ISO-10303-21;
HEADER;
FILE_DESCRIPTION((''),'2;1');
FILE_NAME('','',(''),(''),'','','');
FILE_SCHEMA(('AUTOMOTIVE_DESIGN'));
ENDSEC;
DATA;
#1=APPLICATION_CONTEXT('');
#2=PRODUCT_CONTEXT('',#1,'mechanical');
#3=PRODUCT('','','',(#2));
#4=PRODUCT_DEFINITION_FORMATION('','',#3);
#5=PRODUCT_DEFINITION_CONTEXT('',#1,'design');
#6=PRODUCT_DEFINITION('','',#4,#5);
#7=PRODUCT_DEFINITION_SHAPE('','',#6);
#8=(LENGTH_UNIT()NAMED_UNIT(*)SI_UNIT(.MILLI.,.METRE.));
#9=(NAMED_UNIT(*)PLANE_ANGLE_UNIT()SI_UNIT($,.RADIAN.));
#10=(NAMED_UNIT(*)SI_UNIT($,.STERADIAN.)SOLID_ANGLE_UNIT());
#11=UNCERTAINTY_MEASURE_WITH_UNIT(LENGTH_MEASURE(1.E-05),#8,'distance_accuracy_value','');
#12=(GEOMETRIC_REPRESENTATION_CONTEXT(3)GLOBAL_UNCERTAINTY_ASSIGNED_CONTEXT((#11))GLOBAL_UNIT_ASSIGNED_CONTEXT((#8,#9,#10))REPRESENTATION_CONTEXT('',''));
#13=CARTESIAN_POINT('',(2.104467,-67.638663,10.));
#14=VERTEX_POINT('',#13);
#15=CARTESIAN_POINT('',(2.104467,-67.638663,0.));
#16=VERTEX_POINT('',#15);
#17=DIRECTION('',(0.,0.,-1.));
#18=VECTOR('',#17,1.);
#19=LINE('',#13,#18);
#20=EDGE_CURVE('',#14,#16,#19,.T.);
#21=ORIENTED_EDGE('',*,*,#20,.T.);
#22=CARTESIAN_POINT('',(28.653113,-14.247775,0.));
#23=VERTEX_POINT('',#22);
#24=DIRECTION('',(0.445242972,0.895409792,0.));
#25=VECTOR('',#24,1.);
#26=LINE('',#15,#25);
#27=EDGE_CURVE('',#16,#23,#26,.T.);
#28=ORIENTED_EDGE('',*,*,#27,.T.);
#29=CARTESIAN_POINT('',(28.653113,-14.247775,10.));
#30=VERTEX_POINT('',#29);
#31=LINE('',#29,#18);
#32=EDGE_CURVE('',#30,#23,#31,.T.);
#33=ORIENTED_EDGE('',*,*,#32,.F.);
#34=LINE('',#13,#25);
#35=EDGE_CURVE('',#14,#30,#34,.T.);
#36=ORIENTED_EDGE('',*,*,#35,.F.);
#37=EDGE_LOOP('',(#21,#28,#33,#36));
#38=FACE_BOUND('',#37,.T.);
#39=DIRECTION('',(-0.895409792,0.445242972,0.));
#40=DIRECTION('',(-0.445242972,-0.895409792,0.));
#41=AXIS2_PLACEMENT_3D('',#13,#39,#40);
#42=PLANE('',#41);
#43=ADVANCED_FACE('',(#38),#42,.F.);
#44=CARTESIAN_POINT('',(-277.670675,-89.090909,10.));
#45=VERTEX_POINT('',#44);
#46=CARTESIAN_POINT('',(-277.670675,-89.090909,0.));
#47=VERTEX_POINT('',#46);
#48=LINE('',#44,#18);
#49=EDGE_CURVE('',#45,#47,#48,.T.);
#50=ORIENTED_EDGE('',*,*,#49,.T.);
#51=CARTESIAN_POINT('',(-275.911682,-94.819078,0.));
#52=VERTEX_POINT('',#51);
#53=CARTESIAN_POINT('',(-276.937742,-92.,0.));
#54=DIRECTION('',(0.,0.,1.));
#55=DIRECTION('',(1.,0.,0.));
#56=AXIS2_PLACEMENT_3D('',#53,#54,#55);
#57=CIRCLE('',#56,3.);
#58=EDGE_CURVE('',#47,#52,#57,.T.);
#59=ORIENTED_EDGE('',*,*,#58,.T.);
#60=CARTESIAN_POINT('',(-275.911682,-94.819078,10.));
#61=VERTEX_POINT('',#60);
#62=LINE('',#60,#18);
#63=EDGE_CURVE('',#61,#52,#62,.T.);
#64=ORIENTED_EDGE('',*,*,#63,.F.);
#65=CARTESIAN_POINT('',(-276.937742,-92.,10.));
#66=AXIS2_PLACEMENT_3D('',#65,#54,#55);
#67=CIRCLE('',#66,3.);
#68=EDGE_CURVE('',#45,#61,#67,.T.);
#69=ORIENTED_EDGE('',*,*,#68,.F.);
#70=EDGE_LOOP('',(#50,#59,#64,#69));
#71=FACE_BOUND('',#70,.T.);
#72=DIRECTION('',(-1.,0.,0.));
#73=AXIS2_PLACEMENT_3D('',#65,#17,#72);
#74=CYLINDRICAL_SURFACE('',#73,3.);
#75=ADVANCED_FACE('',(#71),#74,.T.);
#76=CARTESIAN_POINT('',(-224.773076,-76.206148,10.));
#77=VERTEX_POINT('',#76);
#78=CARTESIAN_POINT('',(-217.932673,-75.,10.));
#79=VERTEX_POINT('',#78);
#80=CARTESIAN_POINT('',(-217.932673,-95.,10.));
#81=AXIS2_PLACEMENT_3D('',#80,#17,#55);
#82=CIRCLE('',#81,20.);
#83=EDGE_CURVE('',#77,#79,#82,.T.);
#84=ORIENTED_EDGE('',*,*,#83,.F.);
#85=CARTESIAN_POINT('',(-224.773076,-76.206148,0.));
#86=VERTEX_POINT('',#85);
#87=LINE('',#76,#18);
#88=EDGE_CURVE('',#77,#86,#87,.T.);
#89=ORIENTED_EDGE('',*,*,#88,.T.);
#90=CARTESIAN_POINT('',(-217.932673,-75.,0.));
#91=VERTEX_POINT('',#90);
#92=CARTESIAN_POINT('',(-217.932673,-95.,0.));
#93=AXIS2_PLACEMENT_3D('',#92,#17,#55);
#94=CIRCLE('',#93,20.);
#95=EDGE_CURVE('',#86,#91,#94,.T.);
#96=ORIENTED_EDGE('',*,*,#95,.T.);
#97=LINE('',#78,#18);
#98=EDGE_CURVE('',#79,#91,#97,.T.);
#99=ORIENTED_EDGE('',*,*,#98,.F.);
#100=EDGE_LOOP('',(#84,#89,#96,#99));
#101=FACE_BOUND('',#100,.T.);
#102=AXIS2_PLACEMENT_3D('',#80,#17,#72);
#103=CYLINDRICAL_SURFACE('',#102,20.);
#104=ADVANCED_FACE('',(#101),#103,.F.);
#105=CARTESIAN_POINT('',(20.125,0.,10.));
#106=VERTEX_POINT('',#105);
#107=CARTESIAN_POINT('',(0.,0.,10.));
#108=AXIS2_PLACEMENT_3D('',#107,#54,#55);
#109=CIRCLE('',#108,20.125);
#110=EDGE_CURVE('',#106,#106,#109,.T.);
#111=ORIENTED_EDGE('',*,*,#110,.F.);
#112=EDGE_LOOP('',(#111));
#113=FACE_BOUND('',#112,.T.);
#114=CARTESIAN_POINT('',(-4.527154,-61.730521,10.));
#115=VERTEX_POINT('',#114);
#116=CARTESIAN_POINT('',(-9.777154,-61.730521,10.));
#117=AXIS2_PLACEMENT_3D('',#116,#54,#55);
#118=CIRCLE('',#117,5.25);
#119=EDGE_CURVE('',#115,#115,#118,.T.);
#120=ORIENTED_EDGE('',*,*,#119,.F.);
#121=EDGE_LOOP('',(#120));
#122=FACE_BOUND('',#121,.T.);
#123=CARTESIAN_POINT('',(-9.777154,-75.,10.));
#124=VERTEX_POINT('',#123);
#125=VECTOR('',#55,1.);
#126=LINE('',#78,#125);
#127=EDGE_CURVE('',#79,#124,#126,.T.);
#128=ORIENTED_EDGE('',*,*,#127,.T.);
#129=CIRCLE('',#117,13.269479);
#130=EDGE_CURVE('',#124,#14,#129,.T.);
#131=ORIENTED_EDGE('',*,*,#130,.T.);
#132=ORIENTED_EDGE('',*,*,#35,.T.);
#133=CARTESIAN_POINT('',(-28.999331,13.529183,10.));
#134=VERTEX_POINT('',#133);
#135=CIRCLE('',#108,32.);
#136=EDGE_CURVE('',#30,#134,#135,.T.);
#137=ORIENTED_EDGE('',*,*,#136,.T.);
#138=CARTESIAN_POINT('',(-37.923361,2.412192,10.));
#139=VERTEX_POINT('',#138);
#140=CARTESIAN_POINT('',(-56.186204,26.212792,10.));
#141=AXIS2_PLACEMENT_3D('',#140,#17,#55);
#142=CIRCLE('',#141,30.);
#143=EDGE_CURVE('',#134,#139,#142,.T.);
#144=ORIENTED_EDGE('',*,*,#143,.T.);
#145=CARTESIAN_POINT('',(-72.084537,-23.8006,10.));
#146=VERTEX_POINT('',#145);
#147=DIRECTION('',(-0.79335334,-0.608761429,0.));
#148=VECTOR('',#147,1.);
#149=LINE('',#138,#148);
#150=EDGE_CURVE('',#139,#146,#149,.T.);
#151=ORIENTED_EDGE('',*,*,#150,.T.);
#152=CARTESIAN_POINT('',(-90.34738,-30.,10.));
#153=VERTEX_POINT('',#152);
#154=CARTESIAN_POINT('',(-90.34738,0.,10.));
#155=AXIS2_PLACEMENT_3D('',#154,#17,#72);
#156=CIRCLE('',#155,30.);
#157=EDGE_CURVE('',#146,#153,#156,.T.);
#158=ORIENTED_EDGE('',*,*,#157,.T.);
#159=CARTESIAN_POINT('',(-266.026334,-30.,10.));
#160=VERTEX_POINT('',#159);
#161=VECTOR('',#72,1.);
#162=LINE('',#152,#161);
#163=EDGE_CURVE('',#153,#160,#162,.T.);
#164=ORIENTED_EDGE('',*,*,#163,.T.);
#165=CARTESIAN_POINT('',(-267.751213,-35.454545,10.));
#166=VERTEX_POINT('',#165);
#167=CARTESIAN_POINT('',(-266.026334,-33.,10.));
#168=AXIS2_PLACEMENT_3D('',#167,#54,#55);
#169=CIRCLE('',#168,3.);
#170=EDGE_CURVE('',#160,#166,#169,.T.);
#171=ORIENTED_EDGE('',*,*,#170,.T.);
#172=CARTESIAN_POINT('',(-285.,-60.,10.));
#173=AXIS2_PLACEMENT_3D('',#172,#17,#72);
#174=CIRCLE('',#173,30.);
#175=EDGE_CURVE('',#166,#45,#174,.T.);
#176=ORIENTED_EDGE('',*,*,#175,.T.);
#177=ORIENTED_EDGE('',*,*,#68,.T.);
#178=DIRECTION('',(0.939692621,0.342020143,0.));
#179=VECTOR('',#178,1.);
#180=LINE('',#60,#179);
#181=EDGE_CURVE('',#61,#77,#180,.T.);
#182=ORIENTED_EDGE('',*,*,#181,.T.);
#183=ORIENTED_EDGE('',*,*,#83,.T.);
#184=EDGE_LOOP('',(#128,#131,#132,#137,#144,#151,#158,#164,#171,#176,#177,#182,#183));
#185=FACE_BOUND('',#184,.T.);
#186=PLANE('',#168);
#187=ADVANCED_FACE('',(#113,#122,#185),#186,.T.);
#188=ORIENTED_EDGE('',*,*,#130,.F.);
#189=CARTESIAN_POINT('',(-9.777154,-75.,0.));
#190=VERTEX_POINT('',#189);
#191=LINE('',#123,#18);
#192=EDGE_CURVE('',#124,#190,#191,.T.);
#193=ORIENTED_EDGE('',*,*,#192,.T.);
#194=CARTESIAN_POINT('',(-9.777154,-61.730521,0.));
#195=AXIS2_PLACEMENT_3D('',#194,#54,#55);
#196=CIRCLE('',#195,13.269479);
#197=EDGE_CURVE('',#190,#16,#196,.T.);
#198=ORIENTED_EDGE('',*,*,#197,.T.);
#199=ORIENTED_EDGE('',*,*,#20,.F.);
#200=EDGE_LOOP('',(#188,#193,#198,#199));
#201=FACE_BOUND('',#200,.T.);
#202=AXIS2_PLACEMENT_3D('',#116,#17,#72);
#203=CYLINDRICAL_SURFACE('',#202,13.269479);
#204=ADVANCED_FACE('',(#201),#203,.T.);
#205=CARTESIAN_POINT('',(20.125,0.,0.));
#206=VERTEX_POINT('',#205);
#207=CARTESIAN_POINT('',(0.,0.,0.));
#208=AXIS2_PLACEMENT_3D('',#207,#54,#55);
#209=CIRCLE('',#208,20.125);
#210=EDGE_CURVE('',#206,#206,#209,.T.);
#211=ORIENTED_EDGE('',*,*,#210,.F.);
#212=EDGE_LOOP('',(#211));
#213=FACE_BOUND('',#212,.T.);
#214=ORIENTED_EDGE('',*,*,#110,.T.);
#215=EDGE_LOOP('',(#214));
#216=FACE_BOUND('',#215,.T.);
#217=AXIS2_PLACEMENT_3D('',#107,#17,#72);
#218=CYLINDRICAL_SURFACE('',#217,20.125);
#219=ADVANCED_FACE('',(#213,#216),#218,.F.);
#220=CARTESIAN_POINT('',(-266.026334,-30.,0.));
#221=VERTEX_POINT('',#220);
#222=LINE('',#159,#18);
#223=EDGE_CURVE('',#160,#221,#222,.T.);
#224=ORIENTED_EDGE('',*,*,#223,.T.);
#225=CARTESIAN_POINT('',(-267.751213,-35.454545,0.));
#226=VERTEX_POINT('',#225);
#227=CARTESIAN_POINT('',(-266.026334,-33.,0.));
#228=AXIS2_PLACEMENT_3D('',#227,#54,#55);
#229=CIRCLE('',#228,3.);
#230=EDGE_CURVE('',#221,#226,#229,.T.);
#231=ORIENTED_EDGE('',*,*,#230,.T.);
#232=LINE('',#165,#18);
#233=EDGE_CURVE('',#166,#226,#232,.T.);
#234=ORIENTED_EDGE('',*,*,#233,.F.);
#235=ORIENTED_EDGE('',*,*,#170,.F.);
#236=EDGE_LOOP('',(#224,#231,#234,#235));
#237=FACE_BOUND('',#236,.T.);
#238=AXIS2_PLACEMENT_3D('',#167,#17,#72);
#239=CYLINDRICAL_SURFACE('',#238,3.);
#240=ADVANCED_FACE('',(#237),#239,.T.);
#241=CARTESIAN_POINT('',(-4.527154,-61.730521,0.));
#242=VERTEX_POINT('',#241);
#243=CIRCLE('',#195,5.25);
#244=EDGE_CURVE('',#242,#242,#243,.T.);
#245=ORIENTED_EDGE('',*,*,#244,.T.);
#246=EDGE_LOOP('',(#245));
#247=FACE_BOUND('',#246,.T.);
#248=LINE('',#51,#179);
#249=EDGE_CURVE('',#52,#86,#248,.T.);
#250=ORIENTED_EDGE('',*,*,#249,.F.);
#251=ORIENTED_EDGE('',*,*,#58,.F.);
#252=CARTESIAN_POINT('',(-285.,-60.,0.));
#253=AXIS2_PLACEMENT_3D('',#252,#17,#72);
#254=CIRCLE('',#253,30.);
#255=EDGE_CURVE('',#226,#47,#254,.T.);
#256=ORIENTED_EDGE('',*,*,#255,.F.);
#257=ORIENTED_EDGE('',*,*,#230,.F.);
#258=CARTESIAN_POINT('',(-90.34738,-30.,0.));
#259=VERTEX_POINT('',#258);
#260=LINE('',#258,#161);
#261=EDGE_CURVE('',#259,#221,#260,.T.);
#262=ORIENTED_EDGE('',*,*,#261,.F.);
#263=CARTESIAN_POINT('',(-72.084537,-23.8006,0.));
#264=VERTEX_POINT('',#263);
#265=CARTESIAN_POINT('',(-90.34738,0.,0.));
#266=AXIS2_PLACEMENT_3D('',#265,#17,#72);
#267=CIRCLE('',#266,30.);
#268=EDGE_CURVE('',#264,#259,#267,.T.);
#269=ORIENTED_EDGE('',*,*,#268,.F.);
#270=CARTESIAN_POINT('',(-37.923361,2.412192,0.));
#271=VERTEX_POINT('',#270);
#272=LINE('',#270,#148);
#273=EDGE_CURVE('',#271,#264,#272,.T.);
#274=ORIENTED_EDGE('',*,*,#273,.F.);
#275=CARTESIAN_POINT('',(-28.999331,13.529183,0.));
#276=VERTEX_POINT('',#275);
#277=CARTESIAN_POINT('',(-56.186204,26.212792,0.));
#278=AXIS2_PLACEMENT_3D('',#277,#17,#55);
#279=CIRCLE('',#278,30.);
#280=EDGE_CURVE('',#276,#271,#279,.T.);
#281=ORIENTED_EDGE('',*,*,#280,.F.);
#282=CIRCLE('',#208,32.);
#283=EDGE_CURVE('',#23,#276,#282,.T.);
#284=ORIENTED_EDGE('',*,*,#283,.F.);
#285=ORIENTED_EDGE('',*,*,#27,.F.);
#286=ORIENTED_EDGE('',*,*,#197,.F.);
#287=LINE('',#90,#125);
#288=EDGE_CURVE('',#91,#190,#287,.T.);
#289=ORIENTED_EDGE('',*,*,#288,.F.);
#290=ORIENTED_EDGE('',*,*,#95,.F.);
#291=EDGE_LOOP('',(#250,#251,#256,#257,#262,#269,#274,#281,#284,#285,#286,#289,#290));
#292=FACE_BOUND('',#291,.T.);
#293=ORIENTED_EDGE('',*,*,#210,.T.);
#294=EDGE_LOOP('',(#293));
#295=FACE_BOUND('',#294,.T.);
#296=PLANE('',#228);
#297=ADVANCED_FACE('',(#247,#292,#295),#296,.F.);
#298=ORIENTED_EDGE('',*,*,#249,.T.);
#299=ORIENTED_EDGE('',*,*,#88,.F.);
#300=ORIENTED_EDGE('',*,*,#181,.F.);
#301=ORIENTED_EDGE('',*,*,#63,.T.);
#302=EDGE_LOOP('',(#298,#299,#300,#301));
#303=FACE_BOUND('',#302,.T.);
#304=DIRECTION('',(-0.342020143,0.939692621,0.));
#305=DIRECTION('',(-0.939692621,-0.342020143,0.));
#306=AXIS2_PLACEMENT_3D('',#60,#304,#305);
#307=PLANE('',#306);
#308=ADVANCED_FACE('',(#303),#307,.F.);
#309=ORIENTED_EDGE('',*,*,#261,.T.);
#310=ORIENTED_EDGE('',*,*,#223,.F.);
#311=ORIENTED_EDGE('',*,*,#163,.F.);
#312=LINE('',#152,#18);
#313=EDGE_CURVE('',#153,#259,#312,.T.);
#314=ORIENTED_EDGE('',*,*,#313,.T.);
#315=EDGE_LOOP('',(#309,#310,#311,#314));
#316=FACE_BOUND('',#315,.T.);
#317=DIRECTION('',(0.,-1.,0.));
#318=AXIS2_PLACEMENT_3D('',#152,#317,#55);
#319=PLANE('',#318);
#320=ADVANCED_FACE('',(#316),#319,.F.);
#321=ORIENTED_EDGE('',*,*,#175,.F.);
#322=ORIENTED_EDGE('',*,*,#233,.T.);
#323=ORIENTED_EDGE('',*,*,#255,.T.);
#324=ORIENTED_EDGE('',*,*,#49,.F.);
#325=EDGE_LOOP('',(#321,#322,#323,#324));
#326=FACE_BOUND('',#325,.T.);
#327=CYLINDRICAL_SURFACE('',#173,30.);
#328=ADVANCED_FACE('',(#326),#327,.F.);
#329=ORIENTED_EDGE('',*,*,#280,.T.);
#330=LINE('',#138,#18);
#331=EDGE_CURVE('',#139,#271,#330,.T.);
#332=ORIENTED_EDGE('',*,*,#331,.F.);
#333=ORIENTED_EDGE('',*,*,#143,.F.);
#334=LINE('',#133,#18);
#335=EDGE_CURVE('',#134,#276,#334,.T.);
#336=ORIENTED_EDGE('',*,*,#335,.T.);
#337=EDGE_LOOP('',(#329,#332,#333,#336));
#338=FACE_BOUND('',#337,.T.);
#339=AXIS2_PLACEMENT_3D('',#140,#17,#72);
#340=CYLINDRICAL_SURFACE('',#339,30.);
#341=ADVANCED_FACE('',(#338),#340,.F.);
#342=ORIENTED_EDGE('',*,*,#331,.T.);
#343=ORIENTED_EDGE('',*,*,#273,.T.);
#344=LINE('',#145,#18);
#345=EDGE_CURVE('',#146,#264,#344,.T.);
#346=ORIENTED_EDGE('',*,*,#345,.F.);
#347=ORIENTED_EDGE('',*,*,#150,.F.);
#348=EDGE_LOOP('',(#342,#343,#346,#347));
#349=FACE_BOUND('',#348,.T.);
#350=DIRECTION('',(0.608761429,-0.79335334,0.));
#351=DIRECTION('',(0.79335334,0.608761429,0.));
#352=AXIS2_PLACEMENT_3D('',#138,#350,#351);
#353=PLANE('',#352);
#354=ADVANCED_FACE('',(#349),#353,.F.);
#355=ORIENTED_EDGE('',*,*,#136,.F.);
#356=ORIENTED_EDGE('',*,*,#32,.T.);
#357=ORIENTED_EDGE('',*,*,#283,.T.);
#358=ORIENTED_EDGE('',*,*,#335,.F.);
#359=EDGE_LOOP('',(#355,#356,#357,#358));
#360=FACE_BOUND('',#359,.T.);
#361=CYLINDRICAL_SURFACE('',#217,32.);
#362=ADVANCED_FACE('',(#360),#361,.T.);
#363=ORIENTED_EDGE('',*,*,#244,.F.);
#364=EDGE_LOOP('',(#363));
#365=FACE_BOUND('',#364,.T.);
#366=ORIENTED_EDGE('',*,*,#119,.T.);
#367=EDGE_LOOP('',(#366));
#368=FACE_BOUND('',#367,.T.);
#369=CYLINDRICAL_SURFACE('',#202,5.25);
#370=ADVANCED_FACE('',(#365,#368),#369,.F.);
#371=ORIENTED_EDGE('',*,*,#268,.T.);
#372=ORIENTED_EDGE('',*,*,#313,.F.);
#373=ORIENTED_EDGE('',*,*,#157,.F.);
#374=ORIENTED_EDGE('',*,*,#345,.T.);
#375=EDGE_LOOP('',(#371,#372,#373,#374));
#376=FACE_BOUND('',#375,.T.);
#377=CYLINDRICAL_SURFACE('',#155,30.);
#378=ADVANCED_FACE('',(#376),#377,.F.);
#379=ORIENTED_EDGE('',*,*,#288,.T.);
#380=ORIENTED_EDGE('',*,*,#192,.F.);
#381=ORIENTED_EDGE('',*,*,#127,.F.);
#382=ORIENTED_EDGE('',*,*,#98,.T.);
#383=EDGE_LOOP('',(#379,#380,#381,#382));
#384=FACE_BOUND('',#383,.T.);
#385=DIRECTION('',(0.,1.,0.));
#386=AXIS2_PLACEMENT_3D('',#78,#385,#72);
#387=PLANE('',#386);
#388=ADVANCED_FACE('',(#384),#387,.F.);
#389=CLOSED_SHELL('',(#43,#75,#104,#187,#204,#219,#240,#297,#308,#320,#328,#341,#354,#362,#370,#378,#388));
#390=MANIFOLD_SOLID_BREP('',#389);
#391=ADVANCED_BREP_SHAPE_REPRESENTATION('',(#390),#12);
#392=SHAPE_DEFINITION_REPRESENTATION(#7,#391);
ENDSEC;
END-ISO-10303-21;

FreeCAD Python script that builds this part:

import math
import FreeCAD as App
import Part
import Sketcher
Q = App.Units.Quantity

doc = App.newDocument("Part")
body = doc.addObject("PartDesign::Body", "Body")

# Sketch on XY plane
sketch1 = doc.addObject("Sketcher::SketchObject", "Sketch")
body.addObject(sketch1)
sketch1.AttachmentSupport = (doc.XY_Plane, [""])
sketch1.MapMode = "FlatFace"
sketch1.addGeometry(Part.LineSegment(App.Vector(-37.9, 2.4, 0), App.Vector(-72.1, -23.8, 0)), False)
sketch1.addGeometry(Part.ArcOfCircle(Part.Circle(App.Vector(-90.3, 0, 0), App.Vector(0, 0, 1), 30), math.radians(-90), math.radians(-53)), False)
sketch1.addGeometry(Part.LineSegment(App.Vector(-90.3, -30, 0), App.Vector(-266, -30, 0)), False)
sketch1.addGeometry(Part.ArcOfCircle(Part.Circle(App.Vector(-266, -33, 0), App.Vector(0, 0, 1), 3), math.radians(90), math.radians(235)), False)
sketch1.addGeometry(Part.ArcOfCircle(Part.Circle(App.Vector(-285, -60, 0), App.Vector(0, 0, 1), 30), math.radians(-76), math.radians(55)), False)
sketch1.addGeometry(Part.ArcOfCircle(Part.Circle(App.Vector(-276.9, -92, 0), App.Vector(0, 0, 1), 3), math.radians(104), math.radians(290)), False)
sketch1.addGeometry(Part.LineSegment(App.Vector(-275.9, -94.8, 0), App.Vector(-224.8, -76.2, 0)), False)
sketch1.addGeometry(Part.ArcOfCircle(Part.Circle(App.Vector(-217.9, -95, 0), App.Vector(0, 0, 1), 20), math.radians(90), math.radians(110)), False)
sketch1.addGeometry(Part.LineSegment(App.Vector(-217.9, -75, 0), App.Vector(-9.8, -75, 0)), False)
sketch1.addGeometry(Part.ArcOfCircle(Part.Circle(App.Vector(-9.8, -61.7, 0), App.Vector(0, 0, 1), 13.3), math.radians(-90), math.radians(-26)), False)
sketch1.addGeometry(Part.LineSegment(App.Vector(2.1, -67.6, 0), App.Vector(28.7, -14.2, 0)), False)
sketch1.addGeometry(Part.ArcOfCircle(Part.Circle(App.Vector(0, 0, 0), App.Vector(0, 0, 1), 32), math.radians(-26), math.radians(155)), False)
sketch1.addGeometry(Part.ArcOfCircle(Part.Circle(App.Vector(-56.2, 26.2, 0), App.Vector(0, 0, 1), 30), math.radians(-53), math.radians(-25)), False)
sketch1.addGeometry(Part.Circle(App.Vector(-9.8, -61.7, 0), App.Vector(0, 0, 1), 5.2), False)
sketch1.addGeometry(Part.Circle(App.Vector(0, 0, 0), App.Vector(0, 0, 1), 20.1), False)
sketch1.addConstraint(Sketcher.Constraint("Tangent", 0, 2, 1, 2))
sketch1.addConstraint(Sketcher.Constraint("Tangent", 1, 1, 2, 1))
sketch1.addConstraint(Sketcher.Constraint("Tangent", 2, 2, 3, 1))
sketch1.addConstraint(Sketcher.Constraint("Tangent", 3, 2, 4, 2))
sketch1.addConstraint(Sketcher.Constraint("Tangent", 4, 1, 5, 1))
sketch1.addConstraint(Sketcher.Constraint("Tangent", 5, 2, 6, 1))
sketch1.addConstraint(Sketcher.Constraint("Tangent", 6, 2, 7, 2))
sketch1.addConstraint(Sketcher.Constraint("Tangent", 7, 1, 8, 1))
sketch1.addConstraint(Sketcher.Constraint("Tangent", 8, 2, 9, 1))
sketch1.addConstraint(Sketcher.Constraint("Tangent", 9, 2, 10, 1))
sketch1.addConstraint(Sketcher.Constraint("Tangent", 10, 2, 11, 1))
sketch1.addConstraint(Sketcher.Constraint("Tangent", 11, 2, 12, 2))
sketch1.addConstraint(Sketcher.Constraint("Tangent", 12, 1, 0, 1))
sketch1.addConstraint(Sketcher.Constraint("Horizontal", 2))
sketch1.addConstraint(Sketcher.Constraint("Horizontal", 8))
sketch1.addConstraint(Sketcher.Constraint("Coincident", 11, 3, -1, 1))
sketch1.addConstraint(Sketcher.Constraint("Coincident", 14, 3, -1, 1))
sketch1.addConstraint(Sketcher.Constraint("Coincident", 13, 3, 9, 3))
sketch1.addConstraint(Sketcher.Constraint("Equal", 1, 4))
sketch1.addConstraint(Sketcher.Constraint("Equal", 3, 5))
sketch1.addConstraint(Sketcher.Constraint("Equal", 4, 12))
sketch1.addConstraint(Sketcher.Constraint("PointOnObject", 1, 3, -1))
sketch1.addConstraint(Sketcher.Constraint("Radius", 1, Q("30 mm")))
sketch1.addConstraint(Sketcher.Constraint("Radius", 3, Q("3 mm")))
sketch1.addConstraint(Sketcher.Constraint("Radius", 7, Q("20 mm")))
sketch1.addConstraint(Sketcher.Constraint("Radius", 11, Q("32 mm")))
sketch1.addConstraint(Sketcher.Constraint("Diameter", 13, Q("10.5 mm")))
sketch1.addConstraint(Sketcher.Constraint("Diameter", 14, Q("40.25 mm")))
sketch1.addConstraint(Sketcher.Constraint("Angle", 6, Q("20 deg")))
sketch1.addConstraint(Sketcher.Constraint("DistanceX", 4, 3, -1, 1, Q("285 mm")))
sketch1.addConstraint(Sketcher.Constraint("DistanceY", 4, 3, -1, 1, Q("60 mm")))
sketch1.addConstraint(Sketcher.Constraint("DistanceY", 5, 3, -1, 1, Q("92 mm")))
sketch1.addConstraint(Sketcher.Constraint("DistanceY", 7, 3, -1, 1, Q("95 mm")))
sketch1.addConstraint(Sketcher.Constraint("Angle", 0, Q("-142.5 deg")))
sketch1.addConstraint(Sketcher.Constraint("Radius", 9, Q("13.269479 mm")))
sketch1.addConstraint(Sketcher.Constraint("DistanceX", 8, 1, 8, 2, Q("208.155519 mm")))
sketch1.addConstraint(Sketcher.Constraint("Distance", 0, Q("43.059219 mm")))
pad1 = doc.addObject("PartDesign::Pad", "Pad")
body.addObject(pad1)
pad1.Profile = sketch1
pad1.Length = 10

doc.recompute()
